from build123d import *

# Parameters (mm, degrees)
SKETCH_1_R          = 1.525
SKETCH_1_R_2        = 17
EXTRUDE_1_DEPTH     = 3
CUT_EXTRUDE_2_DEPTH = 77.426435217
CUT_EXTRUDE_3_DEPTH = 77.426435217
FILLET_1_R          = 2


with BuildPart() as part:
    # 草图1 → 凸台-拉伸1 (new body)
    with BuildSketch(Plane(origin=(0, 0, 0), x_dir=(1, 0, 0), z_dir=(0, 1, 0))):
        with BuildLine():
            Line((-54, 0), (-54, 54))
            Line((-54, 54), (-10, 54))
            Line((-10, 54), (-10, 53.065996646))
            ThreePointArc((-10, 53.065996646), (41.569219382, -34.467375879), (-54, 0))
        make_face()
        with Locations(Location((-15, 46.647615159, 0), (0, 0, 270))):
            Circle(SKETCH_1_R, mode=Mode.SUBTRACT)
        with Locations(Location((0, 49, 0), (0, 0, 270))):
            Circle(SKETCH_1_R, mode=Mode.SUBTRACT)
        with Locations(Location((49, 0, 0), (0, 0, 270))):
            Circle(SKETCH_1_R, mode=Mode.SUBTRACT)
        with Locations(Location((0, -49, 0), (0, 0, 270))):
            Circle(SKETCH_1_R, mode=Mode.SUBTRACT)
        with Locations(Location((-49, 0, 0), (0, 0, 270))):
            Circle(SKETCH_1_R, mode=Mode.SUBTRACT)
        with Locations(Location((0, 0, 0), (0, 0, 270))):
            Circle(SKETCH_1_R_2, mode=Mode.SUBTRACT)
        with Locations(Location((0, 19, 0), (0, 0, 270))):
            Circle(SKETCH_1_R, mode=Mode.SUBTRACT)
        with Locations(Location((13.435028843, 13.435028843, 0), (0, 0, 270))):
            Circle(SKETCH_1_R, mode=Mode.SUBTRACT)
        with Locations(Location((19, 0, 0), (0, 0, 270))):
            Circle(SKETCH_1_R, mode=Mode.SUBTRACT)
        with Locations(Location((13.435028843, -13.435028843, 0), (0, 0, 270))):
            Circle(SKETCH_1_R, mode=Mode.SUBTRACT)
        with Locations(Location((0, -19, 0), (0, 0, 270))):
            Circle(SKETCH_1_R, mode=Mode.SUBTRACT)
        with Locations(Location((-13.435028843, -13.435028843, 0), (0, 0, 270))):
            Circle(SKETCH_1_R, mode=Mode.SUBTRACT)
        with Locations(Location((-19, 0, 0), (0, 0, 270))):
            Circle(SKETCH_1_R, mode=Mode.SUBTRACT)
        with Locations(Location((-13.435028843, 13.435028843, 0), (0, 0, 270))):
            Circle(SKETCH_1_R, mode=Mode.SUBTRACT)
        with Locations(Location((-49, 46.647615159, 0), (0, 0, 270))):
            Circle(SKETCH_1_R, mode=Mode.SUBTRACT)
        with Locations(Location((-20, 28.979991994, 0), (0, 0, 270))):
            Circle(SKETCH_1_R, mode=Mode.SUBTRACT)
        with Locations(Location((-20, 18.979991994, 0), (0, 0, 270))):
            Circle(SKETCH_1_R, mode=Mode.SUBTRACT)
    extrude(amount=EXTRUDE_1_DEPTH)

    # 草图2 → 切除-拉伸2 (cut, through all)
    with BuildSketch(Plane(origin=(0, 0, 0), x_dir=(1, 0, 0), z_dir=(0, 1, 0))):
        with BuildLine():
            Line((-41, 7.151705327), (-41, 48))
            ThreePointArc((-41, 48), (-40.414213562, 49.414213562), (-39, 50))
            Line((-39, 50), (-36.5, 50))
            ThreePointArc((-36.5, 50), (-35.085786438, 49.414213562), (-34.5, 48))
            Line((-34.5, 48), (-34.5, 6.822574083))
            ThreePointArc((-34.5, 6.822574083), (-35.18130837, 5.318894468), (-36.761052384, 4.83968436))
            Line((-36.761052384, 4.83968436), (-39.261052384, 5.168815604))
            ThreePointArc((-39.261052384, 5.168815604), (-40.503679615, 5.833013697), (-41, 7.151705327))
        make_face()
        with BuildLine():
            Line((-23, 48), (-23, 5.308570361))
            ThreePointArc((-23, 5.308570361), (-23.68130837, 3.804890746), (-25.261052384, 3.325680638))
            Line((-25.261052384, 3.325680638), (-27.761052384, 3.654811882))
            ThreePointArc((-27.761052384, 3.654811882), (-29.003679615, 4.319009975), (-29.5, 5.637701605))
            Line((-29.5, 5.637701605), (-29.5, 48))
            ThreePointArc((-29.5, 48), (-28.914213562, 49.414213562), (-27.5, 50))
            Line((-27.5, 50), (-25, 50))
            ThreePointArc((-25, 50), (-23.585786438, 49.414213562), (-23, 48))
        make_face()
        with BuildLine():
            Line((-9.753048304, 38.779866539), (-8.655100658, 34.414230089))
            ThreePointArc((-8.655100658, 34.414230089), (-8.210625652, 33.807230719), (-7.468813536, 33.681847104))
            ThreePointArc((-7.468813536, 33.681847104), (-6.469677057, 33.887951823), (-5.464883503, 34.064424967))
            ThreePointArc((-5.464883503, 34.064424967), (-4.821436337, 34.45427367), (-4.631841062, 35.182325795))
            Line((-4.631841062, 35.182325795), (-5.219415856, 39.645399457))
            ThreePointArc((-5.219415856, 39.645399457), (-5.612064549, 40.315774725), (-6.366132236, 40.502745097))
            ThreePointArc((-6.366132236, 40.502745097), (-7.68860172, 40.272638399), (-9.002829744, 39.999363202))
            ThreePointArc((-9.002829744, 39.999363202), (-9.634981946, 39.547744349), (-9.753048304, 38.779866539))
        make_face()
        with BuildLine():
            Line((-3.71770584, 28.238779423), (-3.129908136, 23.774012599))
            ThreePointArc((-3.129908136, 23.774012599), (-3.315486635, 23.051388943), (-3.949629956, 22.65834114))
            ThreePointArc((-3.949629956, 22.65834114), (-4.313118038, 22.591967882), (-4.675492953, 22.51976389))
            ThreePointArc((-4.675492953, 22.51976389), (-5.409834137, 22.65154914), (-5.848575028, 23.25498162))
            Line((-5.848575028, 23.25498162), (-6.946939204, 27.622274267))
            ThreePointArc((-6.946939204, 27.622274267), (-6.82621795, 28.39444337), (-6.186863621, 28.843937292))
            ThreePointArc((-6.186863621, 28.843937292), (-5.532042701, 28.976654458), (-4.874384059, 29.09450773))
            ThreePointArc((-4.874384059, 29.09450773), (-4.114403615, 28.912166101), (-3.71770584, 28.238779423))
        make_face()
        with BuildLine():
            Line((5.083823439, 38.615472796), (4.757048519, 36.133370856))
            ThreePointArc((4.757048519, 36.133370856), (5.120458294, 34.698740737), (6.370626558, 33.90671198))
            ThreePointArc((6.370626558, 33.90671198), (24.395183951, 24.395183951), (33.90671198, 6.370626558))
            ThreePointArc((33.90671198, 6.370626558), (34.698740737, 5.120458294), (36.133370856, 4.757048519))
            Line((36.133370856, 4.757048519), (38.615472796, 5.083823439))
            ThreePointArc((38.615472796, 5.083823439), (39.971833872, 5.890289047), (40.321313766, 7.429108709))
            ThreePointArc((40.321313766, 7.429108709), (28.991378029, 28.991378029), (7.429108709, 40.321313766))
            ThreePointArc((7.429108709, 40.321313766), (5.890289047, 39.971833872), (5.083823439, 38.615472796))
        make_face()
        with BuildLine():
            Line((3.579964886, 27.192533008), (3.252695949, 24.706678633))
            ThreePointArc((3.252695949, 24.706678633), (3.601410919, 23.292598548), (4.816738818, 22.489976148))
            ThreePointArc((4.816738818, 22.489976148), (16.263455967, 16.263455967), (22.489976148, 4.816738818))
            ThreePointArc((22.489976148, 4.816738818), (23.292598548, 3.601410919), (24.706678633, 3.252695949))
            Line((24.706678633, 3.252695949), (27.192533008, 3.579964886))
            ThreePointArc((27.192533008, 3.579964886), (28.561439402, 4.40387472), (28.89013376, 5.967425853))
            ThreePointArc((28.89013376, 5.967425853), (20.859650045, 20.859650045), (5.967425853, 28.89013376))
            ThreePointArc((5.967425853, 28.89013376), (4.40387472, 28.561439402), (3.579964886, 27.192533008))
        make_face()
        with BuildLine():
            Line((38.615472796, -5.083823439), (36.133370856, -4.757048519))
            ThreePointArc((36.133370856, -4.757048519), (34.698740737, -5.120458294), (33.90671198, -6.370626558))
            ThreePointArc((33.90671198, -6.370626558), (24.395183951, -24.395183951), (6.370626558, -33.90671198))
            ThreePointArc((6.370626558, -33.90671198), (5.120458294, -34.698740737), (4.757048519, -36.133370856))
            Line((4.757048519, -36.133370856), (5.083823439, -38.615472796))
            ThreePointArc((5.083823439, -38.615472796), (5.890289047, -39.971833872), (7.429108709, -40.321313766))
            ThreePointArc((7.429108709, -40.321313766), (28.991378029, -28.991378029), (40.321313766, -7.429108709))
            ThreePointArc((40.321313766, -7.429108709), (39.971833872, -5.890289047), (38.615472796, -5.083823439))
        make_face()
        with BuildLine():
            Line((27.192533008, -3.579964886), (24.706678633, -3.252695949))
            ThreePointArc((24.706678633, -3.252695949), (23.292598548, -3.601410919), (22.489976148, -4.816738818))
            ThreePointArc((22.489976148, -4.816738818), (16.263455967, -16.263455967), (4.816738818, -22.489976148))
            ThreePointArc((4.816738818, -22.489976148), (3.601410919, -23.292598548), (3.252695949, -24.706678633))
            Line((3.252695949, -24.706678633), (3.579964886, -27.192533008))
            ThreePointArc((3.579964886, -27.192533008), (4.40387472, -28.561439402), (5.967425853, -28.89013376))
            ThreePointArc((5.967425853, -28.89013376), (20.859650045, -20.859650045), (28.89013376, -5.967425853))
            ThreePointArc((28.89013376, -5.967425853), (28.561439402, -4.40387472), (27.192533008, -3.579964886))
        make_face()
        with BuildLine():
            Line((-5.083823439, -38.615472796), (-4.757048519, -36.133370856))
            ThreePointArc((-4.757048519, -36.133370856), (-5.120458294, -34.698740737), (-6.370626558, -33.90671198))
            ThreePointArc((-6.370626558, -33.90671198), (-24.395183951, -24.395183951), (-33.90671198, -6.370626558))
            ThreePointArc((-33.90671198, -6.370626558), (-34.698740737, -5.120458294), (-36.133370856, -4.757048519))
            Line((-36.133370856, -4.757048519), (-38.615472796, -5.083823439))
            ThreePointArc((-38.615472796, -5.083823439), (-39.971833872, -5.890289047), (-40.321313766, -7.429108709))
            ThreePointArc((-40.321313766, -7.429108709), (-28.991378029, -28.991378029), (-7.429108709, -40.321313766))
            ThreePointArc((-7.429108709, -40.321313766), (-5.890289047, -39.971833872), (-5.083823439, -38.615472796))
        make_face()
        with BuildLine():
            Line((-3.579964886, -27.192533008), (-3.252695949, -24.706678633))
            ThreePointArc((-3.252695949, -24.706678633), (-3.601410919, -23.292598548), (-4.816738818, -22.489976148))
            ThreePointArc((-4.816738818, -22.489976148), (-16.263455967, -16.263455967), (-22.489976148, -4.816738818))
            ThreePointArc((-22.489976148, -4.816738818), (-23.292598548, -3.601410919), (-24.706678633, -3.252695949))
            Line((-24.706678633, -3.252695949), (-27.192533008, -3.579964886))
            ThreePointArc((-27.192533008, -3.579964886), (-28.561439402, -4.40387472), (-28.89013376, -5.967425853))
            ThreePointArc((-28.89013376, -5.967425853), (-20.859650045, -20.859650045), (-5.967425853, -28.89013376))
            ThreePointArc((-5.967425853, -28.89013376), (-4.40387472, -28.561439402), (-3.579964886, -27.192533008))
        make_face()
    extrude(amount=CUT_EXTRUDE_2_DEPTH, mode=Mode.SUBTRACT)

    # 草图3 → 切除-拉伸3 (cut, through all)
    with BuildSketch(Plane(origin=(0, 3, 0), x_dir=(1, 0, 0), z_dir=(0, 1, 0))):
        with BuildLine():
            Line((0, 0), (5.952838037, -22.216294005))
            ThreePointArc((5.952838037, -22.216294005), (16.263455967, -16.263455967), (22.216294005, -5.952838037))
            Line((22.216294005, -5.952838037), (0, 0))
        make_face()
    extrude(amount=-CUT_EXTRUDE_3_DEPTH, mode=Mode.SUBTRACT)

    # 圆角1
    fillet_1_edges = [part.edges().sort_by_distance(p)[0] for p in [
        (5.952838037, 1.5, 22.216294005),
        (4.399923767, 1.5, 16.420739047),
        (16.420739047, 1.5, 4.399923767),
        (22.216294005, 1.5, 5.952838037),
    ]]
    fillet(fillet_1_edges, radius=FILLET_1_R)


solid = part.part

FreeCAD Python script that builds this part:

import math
import FreeCAD as App
import Part
import Sketcher

V = App.Vector
Q = App.Units.Quantity


def edges_at(feature, points):
    """Names of the edges that pass closest to the given points."""
    edges = feature.Shape.Edges
    near = lambda p: min(range(len(edges)), key=lambda i: edges[i].distToShape(Part.Vertex(*p))[0])
    return sorted({f"Edge{near(p) + 1}" for p in points})

doc = App.newDocument("Part")
body = doc.addObject("PartDesign::Body", "Body")

# Sketch on XZ plane
sketch1 = body.newObject("Sketcher::SketchObject", "Sketch")
sketch1.AttachmentSupport = (doc.getObject("XZ_Plane"), [""])
sketch1.MapMode = "FlatFace"
sketch1.addGeometry([
    Part.LineSegment(V(-54, -54, 0), V(-54, 0, 0)),  # 0
    Part.ArcOfCircle(Part.Circle(V(0, 0, 0), V(0, 0, 1), 54), math.radians(-100.671929), math.radians(180)),  # 1
    Part.LineSegment(V(-10, -53.065997, 0), V(-10, -54, 0)),  # 2
    Part.LineSegment(V(-10, -54, 0), V(-54, -54, 0)),  # 3
    Part.Circle(V(13.435029, 13.435029, 0), V(0, 0, 1), 1.525),  # 4
    Part.Circle(V(0, 49, 0), V(0, 0, 1), 1.525),  # 5
    Part.Circle(V(0, 19, 0), V(0, 0, 1), 1.525),  # 6
    Part.Circle(V(-13.435029, 13.435029, 0), V(0, 0, 1), 1.525),  # 7
    Part.Circle(V(49, 0, 0), V(0, 0, 1), 1.525),  # 8
    Part.Circle(V(19, 0, 0), V(0, 0, 1), 1.525),  # 9
    Part.Circle(V(13.435029, -13.435029, 0), V(0, 0, 1), 1.525),  # 10
    Part.Circle(V(0, 0, 0), V(0, 0, 1), 17),  # 11
    Part.Circle(V(-19, 0, 0), V(0, 0, 1), 1.525),  # 12
    Part.Circle(V(0, -19, 0), V(0, 0, 1), 1.525),  # 13
    Part.Circle(V(-13.435029, -13.435029, 0), V(0, 0, 1), 1.525),  # 14
    Part.Circle(V(-20, -18.979992, 0), V(0, 0, 1), 1.525),  # 15
    Part.Circle(V(-49, 0, 0), V(0, 0, 1), 1.525),  # 16
    Part.Circle(V(-20, -28.979992, 0), V(0, 0, 1), 1.525),  # 17
    Part.Circle(V(0, -49, 0), V(0, 0, 1), 1.525),  # 18
    Part.Circle(V(-15, -46.647615, 0), V(0, 0, 1), 1.525),  # 19
    Part.Circle(V(-49, -46.647615, 0), V(0, 0, 1), 1.525),  # 20
], False)
sketch1.addConstraint([
    Sketcher.Constraint("Tangent", 0, 2, 1, 2),
    Sketcher.Constraint("Coincident", 1, 1, 2, 1),
    Sketcher.Constraint("Coincident", 2, 2, 3, 1),
    Sketcher.Constraint("Coincident", 3, 2, 0, 1),
    Sketcher.Constraint("Vertical", 0),
    Sketcher.Constraint("Vertical", 2),
    Sketcher.Constraint("Horizontal", 3),
    Sketcher.Constraint("Coincident", 1, 3, -1, 1),
    Sketcher.Constraint("Coincident", 11, 3, -1, 1),
    Sketcher.Constraint("Equal", 4, 5),
    Sketcher.Constraint("Equal", 5, 6),
    Sketcher.Constraint("Equal", 6, 7),
    Sketcher.Constraint("Equal", 7, 8),
    Sketcher.Constraint("Equal", 8, 9),
    Sketcher.Constraint("Equal", 9, 10),
    Sketcher.Constraint("Equal", 10, 12),
    Sketcher.Constraint("Equal", 12, 13),
    Sketcher.Constraint("Equal", 13, 14),
    Sketcher.Constraint("Equal", 14, 15),
    Sketcher.Constraint("Equal", 15, 16),
    Sketcher.Constraint("Equal", 16, 17),
    Sketcher.Constraint("Equal", 17, 18),
    Sketcher.Constraint("Equal", 18, 19),
    Sketcher.Constraint("Equal", 19, 20),
    Sketcher.Constraint("Symmetric", 7, 3, 10, 3, -1, 1),
    Sketcher.Constraint("Symmetric", 9, 3, 12, 3, -1, 1),
    Sketcher.Constraint("Symmetric", 6, 3, 13, 3, -1, 1),
    Sketcher.Constraint("Symmetric", 4, 3, 14, 3, -1, 1),
    Sketcher.Constraint("Symmetric", 8, 3, 16, 3, -1, 1),
    Sketcher.Constraint("Symmetric", 5, 3, 18, 3, -1, 1),
    Sketcher.Constraint("Symmetric", 4, 3, 7, 3, -2),
    Sketcher.Constraint("PointOnObject", 5, 3, -2),
    Sketcher.Constraint("PointOnObject", 6, 3, -2),
    Sketcher.Constraint("PointOnObject", 8, 3, -1),
    Sketcher.Constraint("PointOnObject", 9, 3, -1),
    Sketcher.Constraint("Horizontal", 19, 3, 20, 3),
    Sketcher.Constraint("Vertical", 15, 3, 17, 3),
    Sketcher.Constraint("Vertical", 16, 3, 20, 3),
    Sketcher.Constraint("Diameter", 11, Q("34 mm")),
    Sketcher.Constraint("Radius", 1, Q("54 mm")),
    Sketcher.Constraint("Diameter", 4, Q("3.05 mm")),
    Sketcher.Constraint("DistanceX", 3, 2, 3, 1, Q("44 mm")),
    Sketcher.Constraint("DistanceY", 0, 1, 0, 2, Q("54 mm")),
    Sketcher.Constraint("DistanceY", -1, 1, 5, 3, Q("49 mm")),
    Sketcher.Constraint("DistanceY", -1, 1, 6, 3, Q("19 mm")),
    Sketcher.Constraint("DistanceX", -1, 1, 8, 3, Q("49 mm")),
    Sketcher.Constraint("DistanceX", -1, 1, 9, 3, Q("19 mm")),
    Sketcher.Constraint("DistanceX", 15, 3, -1, 1, Q("20 mm")),
    Sketcher.Constraint("DistanceX", 19, 3, -1, 1, Q("15 mm")),
    Sketcher.Constraint("DistanceY", 17, 3, 15, 3, Q("10 mm")),
    Sketcher.Constraint("DistanceX", -1, 1, 4, 3, Q("13.435029 mm")),
    Sketcher.Constraint("DistanceY", -1, 1, 4, 3, Q("13.435029 mm")),
    Sketcher.Constraint("DistanceY", 15, 3, -1, 1, Q("18.979992 mm")),
    Sketcher.Constraint("DistanceY", 1, 1, 19, 3, Q("6.418381 mm")),
])
pad1 = body.newObject("PartDesign::Pad", "Pad")
pad1.Profile = sketch1
pad1.Length = 3
pad1.Reversed = True

# Sketch on XZ plane
sketch2 = body.newObject("Sketcher::SketchObject", "Sketch001")
sketch2.AttachmentSupport = (doc.getObject("XZ_Plane"), [""])
sketch2.MapMode = "FlatFace"
sketch2.addGeometry([
    Part.LineSegment(V(-41, -48, 0), V(-41, -7.151705, 0)),  # 0
    Part.ArcOfCircle(Part.Circle(V(-39, -7.151705, 0), V(0, 0, 1), 2), math.radians(97.5), math.radians(180)),  # 1
    Part.LineSegment(V(-39.261052, -5.168816, 0), V(-36.761052, -4.839684, 0)),  # 2
    Part.ArcOfCircle(Part.Circle(V(-36.5, -6.822574, 0), V(0, 0, 1), 2), math.radians(0), math.radians(97.5)),  # 3
    Part.LineSegment(V(-34.5, -6.822574, 0), V(-34.5, -48, 0)),  # 4
    Part.ArcOfCircle(Part.Circle(V(-36.5, -48, 0), V(0, 0, 1), 2), math.radians(-90), math.radians(0)),  # 5
    Part.LineSegment(V(-36.5, -50, 0), V(-39, -50, 0)),  # 6
    Part.ArcOfCircle(Part.Circle(V(-39, -48, 0), V(0, 0, 1), 2), math.radians(-180), math.radians(-90)),  # 7
    Part.LineSegment(V(-23, -5.30857, 0), V(-23, -48, 0)),  # 8
    Part.ArcOfCircle(Part.Circle(V(-25, -48, 0), V(0, 0, 1), 2), math.radians(-90), math.radians(0)),  # 9
    Part.LineSegment(V(-25, -50, 0), V(-27.5, -50, 0)),  # 10
    Part.ArcOfCircle(Part.Circle(V(-27.5, -48, 0), V(0, 0, 1), 2), math.radians(-180), math.radians(-90)),  # 11
    Part.LineSegment(V(-29.5, -48, 0), V(-29.5, -5.637702, 0)),  # 12
    Part.ArcOfCircle(Part.Circle(V(-27.5, -5.637702, 0), V(0, 0, 1), 2), math.radians(97.5), math.radians(180)),  # 13
    Part.LineSegment(V(-27.761052, -3.654812, 0), V(-25.261052, -3.325681, 0)),  # 14
    Part.ArcOfCircle(Part.Circle(V(-25, -5.30857, 0), V(0, 0, 1), 2), math.radians(0), math.radians(97.5)),  # 15
    Part.LineSegment(V(-9.753048, -38.779867, 0), V(-8.655101, -34.41423, 0)),  # 16
    Part.ArcOfCircle(Part.Circle(V(-7.685301, -34.658133, 0), V(0, 0, 1), 1), math.radians(77.497199), math.radians(165.883019)),  # 17
    Part.ArcOfCircle(Part.Circle(V(0, 0.000001, 0), V(0, 0, 1), 34.500001), math.radians(-102.502801), math.radians(-99.114179)),  # 18
    Part.ArcOfCircle(Part.Circle(V(-5.623286, -35.0518, 0), V(0, 0, 1), 1), math.radians(-7.5), math.radians(80.885821)),  # 19
    Part.LineSegment(V(-4.631841, -35.182326, 0), V(-5.219416, -39.645399, 0)),  # 20
    Part.ArcOfCircle(Part.Circle(V(-6.210861, -39.514873, 0), V(0, 0, 1), 1), math.radians(-98.932544), math.radians(-7.5)),  # 21
    Part.ArcOfCircle(Part.Circle(V(0, -0.000001, 0), V(0, 0, 1), 40.999999), math.radians(-102.684437), math.radians(-98.932544)),  # 22
    Part.ArcOfCircle(Part.Circle(V(-8.783249, -39.023769, 0), V(0, 0, 1), 1), math.radians(165.883019), math.radians(257.315563)),  # 23
    Part.LineSegment(V(-3.129908, -23.774013, 0), V(-3.717706, -28.238779, 0)),  # 24
    Part.ArcOfCircle(Part.Circle(V(-4.709151, -28.108253, 0), V(0, 0, 1), 1), math.radians(-99.510791), math.radians(-7.5)),  # 25
    Part.ArcOfCircle(Part.Circle(V(0, -0.000002, 0), V(0, 0, 1), 29.499998), math.radians(-102.10619), math.radians(-99.510791)),  # 26
    Part.ArcOfCircle(Part.Circle(V(-5.977139, -27.866177, 0), V(0, 0, 1), 1), math.radians(165.883019), math.radians(257.89381)),  # 27
    Part.LineSegment(V(-6.946939, -27.622274, 0), V(-5.848575, -23.254982, 0)),  # 28
    Part.ArcOfCircle(Part.Circle(V(-4.878775, -23.498884, 0), V(0, 0, 1), 1), math.radians(78.271035), math.radians(165.88302)),  # 29
    Part.ArcOfCircle(Part.Circle(V(0.000001, 0.000003, 0), V(0, 0, 1), 23.000003), math.radians(-101.728965), math.radians(-99.888016)),  # 30
    Part.ArcOfCircle(Part.Circle(V(-4.121353, -23.643486, 0), V(0, 0, 1), 1), math.radians(-7.5), math.radians(80.111985)),  # 31
    Part.LineSegment(V(5.083823, -38.615473, 0), V(4.757049, -36.133371, 0)),  # 32
    Part.ArcOfCircle(Part.Circle(V(6.739938, -35.872318, 0), V(0, 0, 1), 2), math.radians(100.641068), math.radians(187.5)),  # 33
    Part.ArcOfCircle(Part.Circle(V(0, 0, 0), V(0, 0, 1), 34.5), math.radians(-79.358932), math.radians(-10.641068)),  # 34
    Part.ArcOfCircle(Part.Circle(V(35.872318, -6.739938, 0), V(0, 0, 1), 2), math.radians(82.5), math.radians(169.358932)),  # 35
    Part.LineSegment(V(36.133371, -4.757049, 0), V(38.615473, -5.083823, 0)),  # 36
    Part.ArcOfCircle(Part.Circle(V(38.35442, -7.066713, 0), V(0, 0, 1), 2), math.radians(-10.439534), math.radians(82.5)),  # 37
    Part.ArcOfCircle(Part.Circle(V(0, 0, 0), V(0, 0, 1), 41), math.radians(-79.560466), math.radians(-10.439534)),  # 38
    Part.ArcOfCircle(Part.Circle(V(7.066713, -38.35442, 0), V(0, 0, 1), 2), math.radians(-172.5), math.radians(-79.560466)),  # 39
    Part.LineSegment(V(3.579965, -27.192533, 0), V(3.252696, -24.706679, 0)),  # 40
    Part.ArcOfCircle(Part.Circle(V(5.235586, -24.445626, 0), V(0, 0, 1), 2), math.radians(102.088566), math.radians(187.5)),  # 41
    Part.ArcOfCircle(Part.Circle(V(0, 0, 0), V(0, 0, 1), 23), math.radians(-77.911434), math.radians(-12.088566)),  # 42
    Part.ArcOfCircle(Part.Circle(V(24.445626, -5.235586, 0), V(0, 0, 1), 2), math.radians(82.5), math.radians(167.911434)),  # 43
    Part.LineSegment(V(24.706679, -3.252696, 0), V(27.192533, -3.579965, 0)),  # 44
    Part.ArcOfCircle(Part.Circle(V(26.931481, -5.562855, 0), V(0, 0, 1), 2), math.radians(-11.670648), math.radians(82.5)),  # 45
    Part.ArcOfCircle(Part.Circle(V(0, 0, 0), V(0, 0, 1), 29.5), math.radians(-78.329352), math.radians(-11.670648)),  # 46
    Part.ArcOfCircle(Part.Circle(V(5.562855, -26.931481, 0), V(0, 0, 1), 2), math.radians(-172.5), math.radians(-78.329352)),  # 47
    Part.LineSegment(V(38.615473, 5.083823, 0), V(36.133371, 4.757049, 0)),  # 48
    Part.ArcOfCircle(Part.Circle(V(35.872318, 6.739938, 0), V(0, 0, 1), 2), math.radians(-169.358932), math.radians(-82.5)),  # 49
    Part.ArcOfCircle(Part.Circle(V(0, 0, 0), V(0, 0, 1), 34.5), math.radians(10.641068), math.radians(79.358932)),  # 50
    Part.ArcOfCircle(Part.Circle(V(6.739938, 35.872318, 0), V(0, 0, 1), 2), math.radians(172.5), math.radians(259.358932)),  # 51
    Part.LineSegment(V(4.757049, 36.133371, 0), V(5.083823, 38.615473, 0)),  # 52
    Part.ArcOfCircle(Part.Circle(V(7.066713, 38.35442, 0), V(0, 0, 1), 2), math.radians(79.560466), math.radians(172.5)),  # 53
    Part.ArcOfCircle(Part.Circle(V(0, 0, 0), V(0, 0, 1), 41), math.radians(10.439534), math.radians(79.560466)),  # 54
    Part.ArcOfCircle(Part.Circle(V(38.35442, 7.066713, 0), V(0, 0, 1), 2), math.radians(-82.5), math.radians(10.439534)),  # 55
    Part.LineSegment(V(27.192533, 3.579965, 0), V(24.706679, 3.252696, 0)),  # 56
    Part.ArcOfCircle(Part.Circle(V(24.445626, 5.235586, 0), V(0, 0, 1), 2), math.radians(-167.911434), math.radians(-82.5)),  # 57
    Part.ArcOfCircle(Part.Circle(V(0, 0, 0), V(0, 0, 1), 23), math.radians(12.088566), math.radians(77.911434)),  # 58
    Part.ArcOfCircle(Part.Circle(V(5.235586, 24.445626, 0), V(0, 0, 1), 2), math.radians(172.5), math.radians(257.911434)),  # 59
    Part.LineSegment(V(3.252696, 24.706679, 0), V(3.579965, 27.192533, 0)),  # 60
    Part.ArcOfCircle(Part.Circle(V(5.562855, 26.931481, 0), V(0, 0, 1), 2), math.radians(78.329352), math.radians(172.5)),  # 61
    Part.ArcOfCircle(Part.Circle(V(0, 0, 0), V(0, 0, 1), 29.5), math.radians(11.670648), math.radians(78.329352)),  # 62
    Part.ArcOfCircle(Part.Circle(V(26.931481, 5.562855, 0), V(0, 0, 1), 2), math.radians(-82.5), math.radians(11.670648)),  # 63
    Part.LineSegment(V(-5.083823, 38.615473, 0), V(-4.757049, 36.133371, 0)),  # 64
    Part.ArcOfCircle(Part.Circle(V(-6.739938, 35.872318, 0), V(0, 0, 1), 2), math.radians(-79.358932), math.radians(7.5)),  # 65
    Part.ArcOfCircle(Part.Circle(V(0, 0, 0), V(0, 0, 1), 34.5), math.radians(100.641068), math.radians(169.358932)),  # 66
    Part.ArcOfCircle(Part.Circle(V(-35.872318, 6.739938, 0), V(0, 0, 1), 2), math.radians(-97.5), math.radians(-10.641068)),  # 67
    Part.LineSegment(V(-36.133371, 4.757049, 0), V(-38.615473, 5.083823, 0)),  # 68
    Part.ArcOfCircle(Part.Circle(V(-38.35442, 7.066713, 0), V(0, 0, 1), 2), math.radians(169.560466), math.radians(262.5)),  # 69
    Part.ArcOfCircle(Part.Circle(V(0, 0, 0), V(0, 0, 1), 41), math.radians(100.439534), math.radians(169.560466)),  # 70
    Part.ArcOfCircle(Part.Circle(V(-7.066713, 38.35442, 0), V(0, 0, 1), 2), math.radians(7.5), math.radians(100.439534)),  # 71
    Part.LineSegment(V(-3.579965, 27.192533, 0), V(-3.252696, 24.706679, 0)),  # 72
    Part.ArcOfCircle(Part.Circle(V(-5.235586, 24.445626, 0), V(0, 0, 1), 2), math.radians(-77.911434), math.radians(7.5)),  # 73
    Part.ArcOfCircle(Part.Circle(V(0, 0, 0), V(0, 0, 1), 23), math.radians(102.088566), math.radians(167.911434)),  # 74
    Part.ArcOfCircle(Part.Circle(V(-24.445626, 5.235586, 0), V(0, 0, 1), 2), math.radians(-97.5), math.radians(-12.088566)),  # 75
    Part.LineSegment(V(-24.706679, 3.252696, 0), V(-27.192533, 3.579965, 0)),  # 76
    Part.ArcOfCircle(Part.Circle(V(-26.931481, 5.562855, 0), V(0, 0, 1), 2), math.radians(168.329352), math.radians(262.5)),  # 77
    Part.ArcOfCircle(Part.Circle(V(0, 0, 0), V(0, 0, 1), 29.5), math.radians(101.670648), math.radians(168.329352)),  # 78
    Part.ArcOfCircle(Part.Circle(V(-5.562855, 26.931481, 0), V(0, 0, 1), 2), math.radians(7.5), math.radians(101.670648)),  # 79
], False)
sketch2.addConstraint([
    Sketcher.Constraint("Tangent", 0, 2, 1, 2),
    Sketcher.Constraint("Tangent", 1, 1, 2, 1),
    Sketcher.Constraint("Tangent", 2, 2, 3, 2),
    Sketcher.Constraint("Tangent", 3, 1, 4, 1),
    Sketcher.Constraint("Tangent", 4, 2, 5, 2),
    Sketcher.Constraint("Tangent", 5, 1, 6, 1),
    Sketcher.Constraint("Tangent", 6, 2, 7, 2),
    Sketcher.Constraint("Tangent", 7, 1, 0, 1),
    Sketcher.Constraint("Tangent", 8, 2, 9, 2),
    Sketcher.Constraint("Tangent", 9, 1, 10, 1),
    Sketcher.Constraint("Tangent", 10, 2, 11, 2),
    Sketcher.Constraint("Tangent", 11, 1, 12, 1),
    Sketcher.Constraint("Tangent", 12, 2, 13, 2),
    Sketcher.Constraint("Tangent", 13, 1, 14, 1),
    Sketcher.Constraint("Tangent", 14, 2, 15, 2),
    Sketcher.Constraint("Tangent", 15, 1, 8, 1),
    Sketcher.Constraint("Tangent", 16, 2, 17, 2),
    Sketcher.Constraint("Tangent", 17, 1, 18, 1),
    Sketcher.Constraint("Tangent", 18, 2, 19, 2),
    Sketcher.Constraint("Tangent", 19, 1, 20, 1),
    Sketcher.Constraint("Tangent", 20, 2, 21, 2),
    Sketcher.Constraint("Tangent", 21, 1, 22, 2),
    Sketcher.Constraint("Tangent", 22, 1, 23, 2),
    Sketcher.Constraint("Tangent", 23, 1, 16, 1),
    Sketcher.Constraint("Tangent", 24, 2, 25, 2),
    Sketcher.Constraint("Tangent", 25, 1, 26, 2),
    Sketcher.Constraint("Tangent", 26, 1, 27, 2),
    Sketcher.Constraint("Tangent", 27, 1, 28, 1),
    Sketcher.Constraint("Tangent", 28, 2, 29, 2),
    Sketcher.Constraint("Tangent", 29, 1, 30, 1),
    Sketcher.Constraint("Tangent", 30, 2, 31, 2),
    Sketcher.Constraint("Tangent", 31, 1, 24, 1),
    Sketcher.Constraint("Tangent", 32, 2, 33, 2),
    Sketcher.Constraint("Tangent", 33, 1, 34, 1),
    Sketcher.Constraint("Tangent", 34, 2, 35, 2),
    Sketcher.Constraint("Tangent", 35, 1, 36, 1),
    Sketcher.Constraint("Tangent", 36, 2, 37, 2),
    Sketcher.Constraint("Tangent", 37, 1, 38, 2),
    Sketcher.Constraint("Tangent", 38, 1, 39, 2),
    Sketcher.Constraint("Tangent", 39, 1, 32, 1),
    Sketcher.Constraint("Tangent", 40, 2, 41, 2),
    Sketcher.Constraint("Tangent", 41, 1, 42, 1),
    Sketcher.Constraint("Tangent", 42, 2, 43, 2),
    Sketcher.Constraint("Tangent", 43, 1, 44, 1),
    Sketcher.Constraint("Tangent", 44, 2, 45, 2),
    Sketcher.Constraint("Tangent", 45, 1, 46, 2),
    Sketcher.Constraint("Tangent", 46, 1, 47, 2),
    Sketcher.Constraint("Tangent", 47, 1, 40, 1),
    Sketcher.Constraint("Tangent", 48, 2, 49, 2),
    Sketcher.Constraint("Tangent", 49, 1, 50, 1),
    Sketcher.Constraint("Tangent", 50, 2, 51, 2),
    Sketcher.Constraint("Tangent", 51, 1, 52, 1),
    Sketcher.Constraint("Tangent", 52, 2, 53, 2),
    Sketcher.Constraint("Tangent", 53, 1, 54, 2),
    Sketcher.Constraint("Tangent", 54, 1, 55, 2),
    Sketcher.Constraint("Tangent", 55, 1, 48, 1),
    Sketcher.Constraint("Tangent", 56, 2, 57, 2),
    Sketcher.Constraint("Tangent", 57, 1, 58, 1),
    Sketcher.Constraint("Tangent", 58, 2, 59, 2),
    Sketcher.Constraint("Tangent", 59, 1, 60, 1),
    Sketcher.Constraint("Tangent", 60, 2, 61, 2),
    Sketcher.Constraint("Tangent", 61, 1, 62, 2),
    Sketcher.Constraint("Tangent", 62, 1, 63, 2),
    Sketcher.Constraint("Tangent", 63, 1, 56, 1),
    Sketcher.Constraint("Tangent", 64, 2, 65, 2),
    Sketcher.Constraint("Tangent", 65, 1, 66, 1),
    Sketcher.Constraint("Tangent", 66, 2, 67, 2),
    Sketcher.Constraint("Tangent", 67, 1, 68, 1),
    Sketcher.Constraint("Tangent", 68, 2, 69, 2),
    Sketcher.Constraint("Tangent", 69, 1, 70, 2),
    Sketcher.Constraint("Tangent", 70, 1, 71, 2),
    Sketcher.Constraint("Tangent", 71, 1, 64, 1),
    Sketcher.Constraint("Tangent", 72, 2, 73, 2),
    Sketcher.Constraint("Tangent", 73, 1, 74, 1),
    Sketcher.Constraint("Tangent", 74, 2, 75, 2),
    Sketcher.Constraint("Tangent", 75, 1, 76, 1),
    Sketcher.Constraint("Tangent", 76, 2, 77, 2),
    Sketcher.Constraint("Tangent", 77, 1, 78, 2),
    Sketcher.Constraint("Tangent", 78, 1, 79, 2),
    Sketcher.Constraint("Tangent", 79, 1, 72, 1),
    Sketcher.Constraint("Vertical", 0),
    Sketcher.Constraint("Vertical", 4),
    Sketcher.Constraint("Horizontal", 6),
    Sketcher.Constraint("Vertical", 8),
    Sketcher.Constraint("Horizontal", 10),
    Sketcher.Constraint("Vertical", 12),
    Sketcher.Constraint("Coincident", 18, 3, -1, 1),
    Sketcher.Constraint("Coincident", 22, 3, -1, 1),
    Sketcher.Constraint("Coincident", 26, 3, -1, 1),
    Sketcher.Constraint("Coincident", 30, 3, -1, 1),
    Sketcher.Constraint("Coincident", 34, 3, -1, 1),
    Sketcher.Constraint("Coincident", 38, 3, -1, 1),
    Sketcher.Constraint("Coincident", 42, 3, -1, 1),
    Sketcher.Constraint("Coincident", 46, 3, -1, 1),
    Sketcher.Constraint("Coincident", 50, 3, -1, 1),
    Sketcher.Constraint("Coincident", 54, 3, -1, 1),
    Sketcher.Constraint("Coincident", 58, 3, -1, 1),
    Sketcher.Constraint("Coincident", 62, 3, -1, 1),
    Sketcher.Constraint("Coincident", 66, 3, -1, 1),
    Sketcher.Constraint("Coincident", 70, 3, -1, 1),
    Sketcher.Constraint("Coincident", 74, 3, -1, 1),
    Sketcher.Constraint("Coincident", 78, 3, -1, 1),
    Sketcher.Constraint("Equal", 1, 3),
    Sketcher.Constraint("Equal", 3, 5),
    Sketcher.Constraint("Equal", 5, 7),
    Sketcher.Constraint("Equal", 7, 9),
    Sketcher.Constraint("Equal", 9, 11),
    Sketcher.Constraint("Equal", 11, 13),
    Sketcher.Constraint("Equal", 13, 15),
    Sketcher.Constraint("Equal", 17, 19),
    Sketcher.Constraint("Equal", 19, 21),
    Sketcher.Constraint("Equal", 21, 23),
    Sketcher.Constraint("Equal", 23, 25),
    Sketcher.Constraint("Equal", 25, 27),
    Sketcher.Constraint("Equal", 27, 29),
    Sketcher.Constraint("Equal", 29, 31),
    Sketcher.Constraint("Equal", 15, 33),
    Sketcher.Constraint("Equal", 18, 34),
    Sketcher.Constraint("Equal", 33, 35),
    Sketcher.Constraint("Equal", 35, 37),
    Sketcher.Constraint("Equal", 22, 38),
    Sketcher.Constraint("Equal", 37, 39),
    Sketcher.Constraint("Equal", 39, 41),
    Sketcher.Constraint("Equal", 41, 43),
    Sketcher.Constraint("Equal", 43, 45),
    Sketcher.Constraint("Equal", 45, 47),
    Sketcher.Constraint("Equal", 47, 49),
    Sketcher.Constraint("Equal", 34, 50),
    Sketcher.Constraint("Equal", 49, 51),
    Sketcher.Constraint("Equal", 51, 53),
    Sketcher.Constraint("Equal", 38, 54),
    Sketcher.Constraint("Equal", 53, 55),
    Sketcher.Constraint("Equal", 55, 57),
    Sketcher.Constraint("Equal", 42, 58),
    Sketcher.Constraint("Equal", 57, 59),
    Sketcher.Constraint("Equal", 59, 61),
    Sketcher.Constraint("Equal", 46, 62),
    Sketcher.Constraint("Equal", 61, 63),
    Sketcher.Constraint("Equal", 63, 65),
    Sketcher.Constraint("Equal", 50, 66),
    Sketcher.Constraint("Equal", 65, 67),
    Sketcher.Constraint("Equal", 67, 69),
    Sketcher.Constraint("Equal", 54, 70),
    Sketcher.Constraint("Equal", 69, 71),
    Sketcher.Constraint("Equal", 71, 73),
    Sketcher.Constraint("Equal", 58, 74),
    Sketcher.Constraint("Equal", 73, 75),
    Sketcher.Constraint("Equal", 75, 77),
    Sketcher.Constraint("Equal", 62, 78),
    Sketcher.Constraint("Equal", 77, 79),
    Sketcher.Constraint("Symmetric", 32, 2, 64, 2, -1, 1),
    Sketcher.Constraint("Symmetric", 35, 1, 67, 1, -1, 1),
    Sketcher.Constraint("Symmetric", 40, 2, 72, 2, -1, 1),
    Sketcher.Constraint("Symmetric", 43, 1, 75, 1, -1, 1),
    Sketcher.Constraint("Symmetric", 51, 1, 64, 2, -2),
    Sketcher.Constraint("Symmetric", 48, 2, 67, 1, -2),
    Sketcher.Constraint("Symmetric", 59, 1, 72, 2, -2),
    Sketcher.Constraint("Symmetric", 56, 2, 75, 1, -2),
    Sketcher.Constraint("Parallel", 2, 14),
    Sketcher.Constraint("Parallel", 20, 24),
    Sketcher.Constraint("Parallel", 16, 28),
    Sketcher.Constraint("Perpendicular", 14, 32),
    Sketcher.Constraint("Perpendicular", 24, 36),
    Sketcher.Constraint("Parallel", 32, 40),
    Sketcher.Constraint("Parallel", 36, 44),
    Sketcher.Constraint("Perpendicular", 40, 48),
    Sketcher.Constraint("Horizontal", 7, 3, 9, 3),
    Sketcher.Constraint("Equal", 6, 10),
    Sketcher.Constraint("Equal", 16, 20),
    Sketcher.Constraint("Equal", 24, 28),
    Sketcher.Constraint("Radius", 1, Q("2 mm")),
    Sketcher.Constraint("Radius", 17, Q("1 mm")),
    Sketcher.Constraint("Radius", 22, Q("40.999999 mm")),
    Sketcher.Constraint("Radius", 42, Q("23 mm")),
    Sketcher.Constraint("Radius", 18, Q("34.500001 mm")),
    Sketcher.Constraint("Radius", 46, Q("29.5 mm")),
    Sketcher.Constraint("DistanceX", 6, 2, 6, 1, Q("2.5 mm")),
    Sketcher.Constraint("DistanceX", 1, 3, -1, 1, Q("39 mm")),
    Sketcher.Constraint("DistanceY", 5, 3, -1, 1, Q("48 mm")),
    Sketcher.Constraint("DistanceX", 9, 3, -1, 1, Q("25 mm")),
    Sketcher.Constraint("Angle", 2, Q("7.5 deg")),
    Sketcher.Constraint("DistanceY", 12, 1, 12, 2, Q("42.362298 mm")),
    Sketcher.Constraint("Radius", 26, Q("29.499998 mm")),
    Sketcher.Constraint("Radius", 30, Q("23.000003 mm")),
    Sketcher.Constraint("DistanceX", 17, 3, -1, 1, Q("7.685301 mm")),
    Sketcher.Constraint("DistanceY", 19, 3, -1, 1, Q("35.0518 mm")),
    Sketcher.Constraint("DistanceY", 0, 1, 0, 2, Q("40.848295 mm")),
    Sketcher.Constraint("DistanceX", 25, 3, -1, 1, Q("4.709151 mm")),
    Sketcher.Constraint("DistanceX", -1, 1, 33, 3, Q("6.739938 mm")),
    Sketcher.Constraint("DistanceX", -1, 1, 35, 3, Q("35.872318 mm")),
    Sketcher.Constraint("DistanceX", -1, 1, 45, 3, Q("26.931481 mm")),
    Sketcher.Constraint("DistanceY", 47, 3, -1, 1, Q("26.931481 mm")),
])
pocket1 = body.newObject("PartDesign::Pocket", "Pocket")
pocket1.Profile = sketch2
pocket1.Type = "ThroughAll"

# Sketch on XZ plane
sketch3 = body.newObject("Sketcher::SketchObject", "Sketch002")
sketch3.AttachmentSupport = (doc.getObject("XZ_Plane"), [""])
sketch3.MapMode = "FlatFace"
sketch3.AttachmentOffset = App.Placement(V(0, 0, -3), App.Rotation())
sketch3.addGeometry([
    Part.LineSegment(V(0, 0, 0), V(5.952838, 22.216294, 0)),
    Part.ArcOfCircle(Part.Circle(V(0, 0, 0), V(0, 0, 1), 23), math.radians(15), math.radians(75)),
    Part.LineSegment(V(22.216294, 5.952838, 0), V(0, 0, 0)),
], False)
sketch3.addConstraint([
    Sketcher.Constraint("Coincident", 0, 2, 1, 2),
    Sketcher.Constraint("Coincident", 1, 1, 2, 1),
    Sketcher.Constraint("Coincident", 2, 2, 0, 1),
    Sketcher.Constraint("Coincident", 1, 3, -1, 1),
    Sketcher.Constraint("Coincident", 2, 2, -1, 1),
    Sketcher.Constraint("Radius", 1, Q("23 mm")),
    Sketcher.Constraint("Angle", 0, Q("75 deg")),
    Sketcher.Constraint("Angle", 2, Q("-165 deg")),
])
pocket2 = body.newObject("PartDesign::Pocket", "Pocket001")
pocket2.Profile = sketch3
pocket2.Type = "ThroughAll"
pocket2.Reversed = True
doc.recompute()

fillet = body.newObject("PartDesign::Fillet", "Fillet")
fillet.Base = (pocket2, edges_at(pocket2, [
    (5.953, 1.5, 22.216),
    (4.4, 1.5, 16.421),
    (16.421, 1.5, 4.4),
    (22.216, 1.5, 5.953),
]))
fillet.Radius = 2

doc.recompute()
